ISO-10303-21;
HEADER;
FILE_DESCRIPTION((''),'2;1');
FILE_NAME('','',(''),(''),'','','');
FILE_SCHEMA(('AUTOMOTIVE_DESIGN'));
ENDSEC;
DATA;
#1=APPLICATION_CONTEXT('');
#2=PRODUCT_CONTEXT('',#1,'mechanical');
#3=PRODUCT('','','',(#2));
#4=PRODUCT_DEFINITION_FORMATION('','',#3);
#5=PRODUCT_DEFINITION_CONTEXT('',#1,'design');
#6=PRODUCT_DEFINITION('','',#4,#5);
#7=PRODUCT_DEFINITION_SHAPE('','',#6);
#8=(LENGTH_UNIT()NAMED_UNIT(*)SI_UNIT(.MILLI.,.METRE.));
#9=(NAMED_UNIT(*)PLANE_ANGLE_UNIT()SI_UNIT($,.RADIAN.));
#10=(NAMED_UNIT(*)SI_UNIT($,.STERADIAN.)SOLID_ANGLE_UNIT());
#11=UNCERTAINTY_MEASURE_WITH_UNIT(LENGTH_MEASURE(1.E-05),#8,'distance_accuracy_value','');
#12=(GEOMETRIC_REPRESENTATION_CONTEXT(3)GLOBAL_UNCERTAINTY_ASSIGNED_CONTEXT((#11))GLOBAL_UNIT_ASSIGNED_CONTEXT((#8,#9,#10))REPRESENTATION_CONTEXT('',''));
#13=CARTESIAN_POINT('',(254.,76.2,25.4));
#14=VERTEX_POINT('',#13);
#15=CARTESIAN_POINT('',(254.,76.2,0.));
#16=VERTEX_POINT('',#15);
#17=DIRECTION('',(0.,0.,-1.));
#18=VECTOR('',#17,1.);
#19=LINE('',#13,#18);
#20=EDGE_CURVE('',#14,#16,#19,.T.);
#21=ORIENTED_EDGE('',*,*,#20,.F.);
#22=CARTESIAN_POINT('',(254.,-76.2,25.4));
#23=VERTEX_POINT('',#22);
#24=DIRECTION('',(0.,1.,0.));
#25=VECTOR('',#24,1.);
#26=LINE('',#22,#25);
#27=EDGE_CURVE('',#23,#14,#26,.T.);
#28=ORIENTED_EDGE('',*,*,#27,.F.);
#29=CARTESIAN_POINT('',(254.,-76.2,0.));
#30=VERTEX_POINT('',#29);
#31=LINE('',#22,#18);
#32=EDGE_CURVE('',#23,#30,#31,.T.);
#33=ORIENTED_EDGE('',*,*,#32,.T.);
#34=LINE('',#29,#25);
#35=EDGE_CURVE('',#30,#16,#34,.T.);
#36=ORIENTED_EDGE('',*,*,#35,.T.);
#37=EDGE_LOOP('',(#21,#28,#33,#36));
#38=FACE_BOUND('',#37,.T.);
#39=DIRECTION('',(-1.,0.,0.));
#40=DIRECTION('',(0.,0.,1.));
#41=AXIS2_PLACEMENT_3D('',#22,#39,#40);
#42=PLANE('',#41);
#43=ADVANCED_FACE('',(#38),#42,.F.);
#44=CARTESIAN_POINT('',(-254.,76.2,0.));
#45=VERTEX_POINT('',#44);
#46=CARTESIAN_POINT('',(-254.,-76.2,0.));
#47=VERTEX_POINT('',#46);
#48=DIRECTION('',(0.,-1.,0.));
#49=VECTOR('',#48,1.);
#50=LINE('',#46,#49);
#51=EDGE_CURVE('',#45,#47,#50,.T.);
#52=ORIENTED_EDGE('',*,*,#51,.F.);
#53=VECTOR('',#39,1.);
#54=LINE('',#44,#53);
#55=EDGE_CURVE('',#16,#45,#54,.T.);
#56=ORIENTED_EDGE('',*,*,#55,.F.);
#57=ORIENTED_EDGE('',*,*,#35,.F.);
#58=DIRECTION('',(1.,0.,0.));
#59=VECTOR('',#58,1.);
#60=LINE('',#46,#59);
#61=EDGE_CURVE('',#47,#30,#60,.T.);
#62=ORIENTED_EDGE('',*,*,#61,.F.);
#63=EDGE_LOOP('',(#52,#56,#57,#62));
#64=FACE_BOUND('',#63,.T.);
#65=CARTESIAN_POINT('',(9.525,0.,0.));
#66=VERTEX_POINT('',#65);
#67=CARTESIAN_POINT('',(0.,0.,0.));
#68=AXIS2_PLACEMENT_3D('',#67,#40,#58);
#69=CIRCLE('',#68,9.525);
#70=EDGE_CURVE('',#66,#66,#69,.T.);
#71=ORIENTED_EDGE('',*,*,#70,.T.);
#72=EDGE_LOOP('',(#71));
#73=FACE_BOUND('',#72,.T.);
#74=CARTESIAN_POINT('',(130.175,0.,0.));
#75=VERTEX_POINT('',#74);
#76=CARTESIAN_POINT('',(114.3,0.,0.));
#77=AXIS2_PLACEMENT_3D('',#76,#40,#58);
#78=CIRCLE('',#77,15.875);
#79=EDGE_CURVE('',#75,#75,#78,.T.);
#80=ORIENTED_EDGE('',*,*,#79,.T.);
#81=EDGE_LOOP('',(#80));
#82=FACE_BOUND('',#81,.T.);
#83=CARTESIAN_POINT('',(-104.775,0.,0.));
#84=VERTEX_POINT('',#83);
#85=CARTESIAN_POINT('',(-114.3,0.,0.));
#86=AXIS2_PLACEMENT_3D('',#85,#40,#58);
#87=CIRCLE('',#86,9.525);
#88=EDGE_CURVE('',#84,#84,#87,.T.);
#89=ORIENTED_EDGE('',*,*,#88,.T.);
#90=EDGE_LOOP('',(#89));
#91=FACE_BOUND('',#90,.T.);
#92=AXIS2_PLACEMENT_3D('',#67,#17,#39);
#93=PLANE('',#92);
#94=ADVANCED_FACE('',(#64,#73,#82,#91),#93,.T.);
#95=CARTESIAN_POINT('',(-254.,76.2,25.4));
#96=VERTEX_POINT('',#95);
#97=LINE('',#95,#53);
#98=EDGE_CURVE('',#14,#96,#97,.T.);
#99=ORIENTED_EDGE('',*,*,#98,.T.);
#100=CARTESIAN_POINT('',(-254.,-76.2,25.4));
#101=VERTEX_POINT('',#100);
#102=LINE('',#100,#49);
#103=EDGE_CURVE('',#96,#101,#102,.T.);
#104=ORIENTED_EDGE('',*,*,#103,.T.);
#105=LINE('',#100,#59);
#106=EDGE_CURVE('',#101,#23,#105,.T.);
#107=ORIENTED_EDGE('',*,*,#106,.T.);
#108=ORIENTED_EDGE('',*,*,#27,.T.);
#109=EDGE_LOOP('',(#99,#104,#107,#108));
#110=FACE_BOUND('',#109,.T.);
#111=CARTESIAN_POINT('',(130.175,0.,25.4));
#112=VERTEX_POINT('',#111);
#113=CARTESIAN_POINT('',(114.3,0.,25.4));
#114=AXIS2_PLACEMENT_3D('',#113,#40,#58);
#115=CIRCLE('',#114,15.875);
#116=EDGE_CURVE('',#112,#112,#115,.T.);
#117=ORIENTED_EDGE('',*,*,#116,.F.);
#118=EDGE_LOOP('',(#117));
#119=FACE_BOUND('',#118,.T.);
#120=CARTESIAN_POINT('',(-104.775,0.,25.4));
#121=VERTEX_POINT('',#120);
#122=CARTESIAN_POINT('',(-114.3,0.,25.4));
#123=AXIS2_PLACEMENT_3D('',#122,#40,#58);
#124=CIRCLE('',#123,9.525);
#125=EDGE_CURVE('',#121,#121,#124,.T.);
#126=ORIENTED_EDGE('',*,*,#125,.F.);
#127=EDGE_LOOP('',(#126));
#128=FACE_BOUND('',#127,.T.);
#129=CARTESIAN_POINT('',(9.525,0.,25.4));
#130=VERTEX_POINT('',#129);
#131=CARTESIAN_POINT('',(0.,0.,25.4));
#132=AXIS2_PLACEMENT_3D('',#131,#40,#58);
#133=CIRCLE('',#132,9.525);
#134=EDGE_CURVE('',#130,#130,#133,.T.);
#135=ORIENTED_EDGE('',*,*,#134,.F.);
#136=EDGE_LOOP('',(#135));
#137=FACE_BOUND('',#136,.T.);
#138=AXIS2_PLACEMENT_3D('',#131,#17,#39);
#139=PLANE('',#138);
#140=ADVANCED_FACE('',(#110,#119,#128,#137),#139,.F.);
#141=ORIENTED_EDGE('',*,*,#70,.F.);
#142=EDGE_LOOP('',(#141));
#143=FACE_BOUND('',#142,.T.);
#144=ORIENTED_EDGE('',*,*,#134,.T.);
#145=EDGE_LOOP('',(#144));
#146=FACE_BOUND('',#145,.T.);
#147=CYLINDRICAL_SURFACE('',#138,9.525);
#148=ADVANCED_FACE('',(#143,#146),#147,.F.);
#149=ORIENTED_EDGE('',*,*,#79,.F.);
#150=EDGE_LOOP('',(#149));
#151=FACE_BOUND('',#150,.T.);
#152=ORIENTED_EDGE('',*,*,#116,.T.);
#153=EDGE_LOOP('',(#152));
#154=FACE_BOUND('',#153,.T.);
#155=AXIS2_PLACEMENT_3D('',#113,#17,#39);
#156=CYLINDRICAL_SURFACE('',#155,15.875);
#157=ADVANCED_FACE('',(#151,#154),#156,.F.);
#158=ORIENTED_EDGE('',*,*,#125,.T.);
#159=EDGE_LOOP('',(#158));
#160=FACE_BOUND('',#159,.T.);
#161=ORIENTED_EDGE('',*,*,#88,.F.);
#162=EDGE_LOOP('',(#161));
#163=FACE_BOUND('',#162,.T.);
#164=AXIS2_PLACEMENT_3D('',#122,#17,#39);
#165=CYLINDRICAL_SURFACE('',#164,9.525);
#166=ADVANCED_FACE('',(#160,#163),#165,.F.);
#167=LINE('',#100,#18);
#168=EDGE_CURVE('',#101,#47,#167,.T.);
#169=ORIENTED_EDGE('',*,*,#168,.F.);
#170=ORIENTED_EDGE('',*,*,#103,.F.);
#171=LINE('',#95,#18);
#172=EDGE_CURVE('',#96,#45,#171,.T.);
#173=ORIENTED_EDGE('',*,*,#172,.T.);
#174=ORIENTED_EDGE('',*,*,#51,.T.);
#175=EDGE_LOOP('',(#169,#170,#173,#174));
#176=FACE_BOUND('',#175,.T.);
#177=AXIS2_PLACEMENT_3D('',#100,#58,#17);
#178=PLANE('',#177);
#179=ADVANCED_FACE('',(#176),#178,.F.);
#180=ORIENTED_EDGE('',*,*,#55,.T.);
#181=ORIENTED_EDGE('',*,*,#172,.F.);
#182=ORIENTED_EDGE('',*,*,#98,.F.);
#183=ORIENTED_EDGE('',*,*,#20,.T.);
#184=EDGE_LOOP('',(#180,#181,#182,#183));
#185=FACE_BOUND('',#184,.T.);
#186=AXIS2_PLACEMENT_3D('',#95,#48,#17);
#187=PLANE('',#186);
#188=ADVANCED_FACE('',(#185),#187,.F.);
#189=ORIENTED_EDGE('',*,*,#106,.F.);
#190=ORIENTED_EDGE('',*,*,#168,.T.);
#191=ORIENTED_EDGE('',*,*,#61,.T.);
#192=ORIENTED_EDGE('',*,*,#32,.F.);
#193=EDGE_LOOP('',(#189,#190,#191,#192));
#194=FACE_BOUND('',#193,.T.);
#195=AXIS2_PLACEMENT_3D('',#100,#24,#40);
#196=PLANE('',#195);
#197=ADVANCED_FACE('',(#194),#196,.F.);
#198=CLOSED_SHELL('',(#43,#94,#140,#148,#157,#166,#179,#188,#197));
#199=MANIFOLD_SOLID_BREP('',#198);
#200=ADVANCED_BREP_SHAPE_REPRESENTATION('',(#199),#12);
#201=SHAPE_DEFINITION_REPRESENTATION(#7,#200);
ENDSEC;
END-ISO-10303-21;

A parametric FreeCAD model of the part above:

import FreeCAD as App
import Part
import Sketcher
from FreeCAD import Vector
Q = App.Units.Quantity

doc = App.newDocument("Part")
body = doc.addObject("PartDesign::Body", "Body")

# Sketch on XY plane
sketch1 = body.newObject("Sketcher::SketchObject", "Sketch")
sketch1.AttachmentSupport = (doc.getObject("XY_Plane"), [""])
sketch1.MapMode = "FlatFace"
sketch1.addGeometry([
    Part.LineSegment(Vector(-254, 76.2, 0), Vector(-254, -76.2, 0)),  # 0
    Part.LineSegment(Vector(-254, -76.2, 0), Vector(254, -76.2, 0)),  # 1
    Part.LineSegment(Vector(254, -76.2, 0), Vector(254, 76.2, 0)),  # 2
    Part.LineSegment(Vector(254, 76.2, 0), Vector(-254, 76.2, 0)),  # 3
    Part.Circle(Vector(-114.3, 0, 0), Vector(0, 0, 1), 9.525),  # 4
    Part.Circle(Vector(0, 0, 0), Vector(0, 0, 1), 9.525),  # 5
    Part.Circle(Vector(114.3, 0, 0), Vector(0, 0, 1), 15.875),  # 6
], False)
sketch1.addConstraint([
    Sketcher.Constraint("Coincident", 0, 2, 1, 1),
    Sketcher.Constraint("Coincident", 1, 2, 2, 1),
    Sketcher.Constraint("Coincident", 2, 2, 3, 1),
    Sketcher.Constraint("Coincident", 3, 2, 0, 1),
    Sketcher.Constraint("Vertical", 0),
    Sketcher.Constraint("Horizontal", 1),
    Sketcher.Constraint("Vertical", 2),
    Sketcher.Constraint("Horizontal", 3),
    Sketcher.Constraint("Coincident", 5, 3, -1, 1),
    Sketcher.Constraint("Equal", 4, 5),
    Sketcher.Constraint("Symmetric", 4, 3, 6, 3, -1, 1),
    Sketcher.Constraint("Symmetric", 0, 2, 2, 2, -1, 1),
    Sketcher.Constraint("PointOnObject", 4, 3, -1),
    Sketcher.Constraint("Diameter", 4, Q("0.75 in")),
    Sketcher.Constraint("Diameter", 6, Q("1.25 in")),
    Sketcher.Constraint("DistanceX", 1, 1, 1, 2, Q("20 in")),
    Sketcher.Constraint("DistanceY", 0, 2, 0, 1, Q("6 in")),
    Sketcher.Constraint("DistanceX", 4, 3, 6, 3, Q("9 in")),
])
pad1 = body.newObject("PartDesign::Pad", "Pad")
pad1.Profile = sketch1
pad1.Length = Q("1 in")

doc.recompute()
